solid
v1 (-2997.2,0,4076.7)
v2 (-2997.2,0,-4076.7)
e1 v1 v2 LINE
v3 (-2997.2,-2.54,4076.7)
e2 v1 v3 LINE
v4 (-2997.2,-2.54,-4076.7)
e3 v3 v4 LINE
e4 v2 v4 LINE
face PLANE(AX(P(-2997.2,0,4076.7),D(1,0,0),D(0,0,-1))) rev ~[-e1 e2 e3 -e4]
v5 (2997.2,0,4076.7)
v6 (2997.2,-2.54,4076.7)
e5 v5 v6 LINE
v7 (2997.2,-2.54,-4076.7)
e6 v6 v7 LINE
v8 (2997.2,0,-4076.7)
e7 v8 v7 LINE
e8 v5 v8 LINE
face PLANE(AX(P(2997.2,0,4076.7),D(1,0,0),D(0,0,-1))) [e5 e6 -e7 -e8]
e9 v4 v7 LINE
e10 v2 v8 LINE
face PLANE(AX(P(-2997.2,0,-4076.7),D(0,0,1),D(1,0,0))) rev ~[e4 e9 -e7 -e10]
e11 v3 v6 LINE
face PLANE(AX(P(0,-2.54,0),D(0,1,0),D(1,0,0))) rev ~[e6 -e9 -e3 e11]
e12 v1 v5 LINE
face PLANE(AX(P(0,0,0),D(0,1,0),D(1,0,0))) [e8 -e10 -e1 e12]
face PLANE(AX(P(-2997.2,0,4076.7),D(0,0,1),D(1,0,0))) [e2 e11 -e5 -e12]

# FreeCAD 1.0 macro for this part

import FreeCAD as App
import Part
import Sketcher
from FreeCAD import Vector
Q = App.Units.Quantity


def add_polygon(sketch, points):
    """Adds a closed chain of lines whose ends are joined by coincident constraints."""
    first, n = sketch.GeometryCount, len(points)
    for a, b in zip(points, points[1:] + points[:1]):
        sketch.addGeometry(Part.LineSegment(App.Vector(*a, 0), App.Vector(*b, 0)), False)
    for i in range(n):
        sketch.addConstraint(Sketcher.Constraint("Coincident", first + i, 2, first + (i + 1) % n, 1))

doc = App.newDocument("Part")
body = doc.addObject("PartDesign::Body", "Body")

sketch1 = doc.addObject("Sketcher::SketchObject", "Sketch")
body.addObject(sketch1)
sketch1.AttachmentSupport = (doc.XZ_Plane, [""])
sketch1.MapMode = "FlatFace"
add_polygon(sketch1, [(-2997.2, -4076.7), (-2997.2, 4076.7), (2997.2, 4076.7), (2997.2, -4076.7)])
sketch1.addConstraint(Sketcher.Constraint("Vertical", 0))
sketch1.addConstraint(Sketcher.Constraint("Horizontal", 1))
sketch1.addConstraint(Sketcher.Constraint("Vertical", 2))
sketch1.addConstraint(Sketcher.Constraint("Horizontal", 3))
sketch1.addConstraint(Sketcher.Constraint("Symmetric", 0, 2, 2, 2, -1, 1))
sketch1.addConstraint(Sketcher.Constraint("DistanceX", 1, 1, 1, 2, Q("236 in")))
sketch1.addConstraint(Sketcher.Constraint("DistanceY", 0, 1, 0, 2, Q("321 in")))
pad1 = doc.addObject("PartDesign::Pad", "Pad")
body.addObject(pad1)
pad1.Profile = sketch1
pad1.Length = Q("0.1 in")

doc.recompute()
